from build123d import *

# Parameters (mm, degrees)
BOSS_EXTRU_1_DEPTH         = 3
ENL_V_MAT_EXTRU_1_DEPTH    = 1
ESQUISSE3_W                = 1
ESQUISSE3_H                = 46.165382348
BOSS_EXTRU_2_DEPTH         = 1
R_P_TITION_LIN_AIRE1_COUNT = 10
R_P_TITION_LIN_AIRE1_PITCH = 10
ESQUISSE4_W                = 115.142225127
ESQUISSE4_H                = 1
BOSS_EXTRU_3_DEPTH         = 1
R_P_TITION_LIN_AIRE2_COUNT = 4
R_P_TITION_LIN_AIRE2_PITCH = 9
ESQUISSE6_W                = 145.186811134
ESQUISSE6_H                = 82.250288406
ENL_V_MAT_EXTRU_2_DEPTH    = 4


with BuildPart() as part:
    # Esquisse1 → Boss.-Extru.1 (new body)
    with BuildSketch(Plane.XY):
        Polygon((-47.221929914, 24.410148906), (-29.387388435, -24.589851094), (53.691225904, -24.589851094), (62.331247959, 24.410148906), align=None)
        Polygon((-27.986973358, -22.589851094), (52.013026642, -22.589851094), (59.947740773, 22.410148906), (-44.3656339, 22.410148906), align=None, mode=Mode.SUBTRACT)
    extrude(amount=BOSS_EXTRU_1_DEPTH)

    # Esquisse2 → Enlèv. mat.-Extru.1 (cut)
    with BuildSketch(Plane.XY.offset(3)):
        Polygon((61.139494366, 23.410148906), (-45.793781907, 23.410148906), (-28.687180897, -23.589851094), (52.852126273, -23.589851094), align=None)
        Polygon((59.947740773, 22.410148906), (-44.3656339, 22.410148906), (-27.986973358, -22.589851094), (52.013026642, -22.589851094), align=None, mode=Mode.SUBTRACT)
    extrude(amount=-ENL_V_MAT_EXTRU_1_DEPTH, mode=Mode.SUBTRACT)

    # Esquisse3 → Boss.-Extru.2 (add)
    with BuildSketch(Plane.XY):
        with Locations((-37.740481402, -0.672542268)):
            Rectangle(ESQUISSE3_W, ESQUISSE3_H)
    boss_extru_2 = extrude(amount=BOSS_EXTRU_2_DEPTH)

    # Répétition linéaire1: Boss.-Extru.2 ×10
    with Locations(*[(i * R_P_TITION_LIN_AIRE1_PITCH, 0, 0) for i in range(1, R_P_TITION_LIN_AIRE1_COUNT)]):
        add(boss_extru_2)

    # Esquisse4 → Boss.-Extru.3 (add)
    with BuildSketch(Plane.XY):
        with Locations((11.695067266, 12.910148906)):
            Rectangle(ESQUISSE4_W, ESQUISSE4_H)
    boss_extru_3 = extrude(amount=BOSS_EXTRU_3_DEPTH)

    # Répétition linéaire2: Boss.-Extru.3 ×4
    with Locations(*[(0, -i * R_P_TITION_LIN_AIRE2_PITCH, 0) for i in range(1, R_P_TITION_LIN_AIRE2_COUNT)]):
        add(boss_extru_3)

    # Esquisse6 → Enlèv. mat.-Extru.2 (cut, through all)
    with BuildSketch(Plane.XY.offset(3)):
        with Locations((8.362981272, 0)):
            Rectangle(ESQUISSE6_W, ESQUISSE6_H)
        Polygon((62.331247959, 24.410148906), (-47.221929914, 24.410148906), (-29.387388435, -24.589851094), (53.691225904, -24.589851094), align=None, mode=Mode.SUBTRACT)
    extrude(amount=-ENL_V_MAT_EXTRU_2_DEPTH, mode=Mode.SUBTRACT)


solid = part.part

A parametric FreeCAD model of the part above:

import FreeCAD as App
import Part
import Sketcher
Q = App.Units.Quantity

doc = App.newDocument("Part")
body = doc.addObject("PartDesign::Body", "Body")

sketch1 = doc.addObject("Sketcher::SketchObject", "Sketch")
body.addObject(sketch1)
sketch1.AttachmentSupport = (doc.XY_Plane, [""])
sketch1.MapMode = "FlatFace"
sketch1.addGeometry([
    Part.LineSegment(App.Vector(-47, 24, 0), App.Vector(-29, -25, 0)),
    Part.LineSegment(App.Vector(-29, -25, 0), App.Vector(54, -25, 0)),
    Part.LineSegment(App.Vector(54, -25, 0), App.Vector(62, 24, 0)),
    Part.LineSegment(App.Vector(62, 24, 0), App.Vector(-47, 24, 0)),
    Part.LineSegment(App.Vector(52, -23, 0), App.Vector(-28, -23, 0)),
    Part.LineSegment(App.Vector(-28, -23, 0), App.Vector(-44, 22, 0)),
    Part.LineSegment(App.Vector(-44, 22, 0), App.Vector(60, 22, 0)),
    Part.LineSegment(App.Vector(60, 22, 0), App.Vector(52, -23, 0)),
], False)
sketch1.addConstraint([
    Sketcher.Constraint("Coincident", 0, 2, 1, 1),
    Sketcher.Constraint("Coincident", 1, 2, 2, 1),
    Sketcher.Constraint("Coincident", 2, 2, 3, 1),
    Sketcher.Constraint("Coincident", 3, 2, 0, 1),
    Sketcher.Constraint("Coincident", 4, 2, 5, 1),
    Sketcher.Constraint("Coincident", 5, 2, 6, 1),
    Sketcher.Constraint("Coincident", 6, 2, 7, 1),
    Sketcher.Constraint("Coincident", 7, 2, 4, 1),
    Sketcher.Constraint("Horizontal", 1),
    Sketcher.Constraint("Horizontal", 3),
    Sketcher.Constraint("Horizontal", 4),
    Sketcher.Constraint("Horizontal", 6),
    Sketcher.Constraint("Parallel", 0, 5),
    Sketcher.Constraint("Parallel", 2, 7),
    Sketcher.Constraint("DistanceX", 4, 2, 4, 1, 80.0),
    Sketcher.Constraint("Angle", 0, Q("-70 deg")),
    Sketcher.Constraint("Angle", 2, Q("80 deg")),
    Sketcher.Constraint("DistanceY", 1, 2, 2, 2, 49.0),
    Sketcher.Constraint("DistanceY", 0, 2, 4, 2, 2.0),
    Sketcher.Constraint("DistanceY", 5, 2, 3, 2, 2.0),
    Sketcher.Constraint("DistanceX", 4, 2, 1, 2, 81.678199),
    Sketcher.Constraint("DistanceX", 1, 1, 1, 2, 83.078614),
    Sketcher.Constraint("DistanceX", 0, 2, -1, 1, 29.387388),
    Sketcher.Constraint("DistanceY", 0, 2, -1, 1, 24.589851),
])
pad1 = doc.addObject("PartDesign::Pad", "Pad")
body.addObject(pad1)
pad1.Profile = sketch1
pad1.Length = 3

sketch2 = doc.addObject("Sketcher::SketchObject", "Sketch001")
body.addObject(sketch2)
sketch2.AttachmentSupport = (doc.XY_Plane, [""])
sketch2.MapMode = "FlatFace"
sketch2.AttachmentOffset = App.Placement(App.Vector(0, 0, 3), App.Rotation())
sketch2.addGeometry([
    Part.LineSegment(App.Vector(61, 23, 0), App.Vector(-46, 23, 0)),
    Part.LineSegment(App.Vector(-46, 23, 0), App.Vector(-29, -24, 0)),
    Part.LineSegment(App.Vector(-29, -24, 0), App.Vector(53, -24, 0)),
    Part.LineSegment(App.Vector(53, -24, 0), App.Vector(61, 23, 0)),
    Part.LineSegment(App.Vector(-44, 22, 0), App.Vector(60, 22, 0)),
    Part.LineSegment(App.Vector(60, 22, 0), App.Vector(52, -23, 0)),
    Part.LineSegment(App.Vector(52, -23, 0), App.Vector(-28, -23, 0)),
    Part.LineSegment(App.Vector(-28, -23, 0), App.Vector(-44, 22, 0)),
], False)
sketch2.addConstraint([
    Sketcher.Constraint("Coincident", 0, 2, 1, 1),
    Sketcher.Constraint("Coincident", 1, 2, 2, 1),
    Sketcher.Constraint("Coincident", 2, 2, 3, 1),
    Sketcher.Constraint("Coincident", 3, 2, 0, 1),
    Sketcher.Constraint("Coincident", 4, 2, 5, 1),
    Sketcher.Constraint("Coincident", 5, 2, 6, 1),
    Sketcher.Constraint("Coincident", 6, 2, 7, 1),
    Sketcher.Constraint("Coincident", 7, 2, 4, 1),
    Sketcher.Constraint("Horizontal", 0),
    Sketcher.Constraint("Horizontal", 2),
    Sketcher.Constraint("Horizontal", 4),
    Sketcher.Constraint("Horizontal", 6),
    Sketcher.Constraint("Parallel", 3, 5),
    Sketcher.Constraint("Parallel", 1, 7),
    Sketcher.Constraint("DistanceX", 6, 2, 6, 1, 80.0),
    Sketcher.Constraint("Angle", 1, Q("-70 deg")),
    Sketcher.Constraint("Angle", 3, Q("80 deg")),
    Sketcher.Constraint("DistanceY", 1, 2, 0, 2, 47.0),
    Sketcher.Constraint("DistanceY", 4, 2, 3, 2, 1.0),
    Sketcher.Constraint("DistanceY", 2, 2, 5, 2, 1.0),
    Sketcher.Constraint("DistanceX", 5, 2, 2, 2, 0.8391),
    Sketcher.Constraint("DistanceX", 0, 2, 0, 1, 106.933276),
    Sketcher.Constraint("DistanceX", 0, 2, -1, 1, 45.793782),
    Sketcher.Constraint("DistanceY", -1, 1, 0, 2, 23.410149),
])
pocket1 = doc.addObject("PartDesign::Pocket", "Pocket")
body.addObject(pocket1)
pocket1.Profile = sketch2
pocket1.Length = 1

sketch3 = doc.addObject("Sketcher::SketchObject", "Sketch002")
body.addObject(sketch3)
sketch3.AttachmentSupport = (doc.XY_Plane, [""])
sketch3.MapMode = "FlatFace"
sketch3.addGeometry([
    Part.LineSegment(App.Vector(-38.2, 22.4, 0), App.Vector(-38.2, -23.8, 0)),
    Part.LineSegment(App.Vector(-38.2, -23.8, 0), App.Vector(-37.2, -23.8, 0)),
    Part.LineSegment(App.Vector(-37.2, -23.8, 0), App.Vector(-37.2, 22.4, 0)),
    Part.LineSegment(App.Vector(-37.2, 22.4, 0), App.Vector(-38.2, 22.4, 0)),
], False)
sketch3.addConstraint([
    Sketcher.Constraint("Coincident", 0, 2, 1, 1),
    Sketcher.Constraint("Coincident", 1, 2, 2, 1),
    Sketcher.Constraint("Coincident", 2, 2, 3, 1),
    Sketcher.Constraint("Coincident", 3, 2, 0, 1),
    Sketcher.Constraint("Vertical", 0),
    Sketcher.Constraint("Horizontal", 1),
    Sketcher.Constraint("Vertical", 2),
    Sketcher.Constraint("Horizontal", 3),
    Sketcher.Constraint("DistanceX", 1, 1, 1, 2, 1.0),
    Sketcher.Constraint("DistanceY", 0, 2, 0, 1, 46.165382),
    Sketcher.Constraint("DistanceX", 0, 2, -1, 1, 38.240481),
    Sketcher.Constraint("DistanceY", -1, 1, 2, 2, 22.410149),
])
pad2 = doc.addObject("PartDesign::Pad", "Pad001")
body.addObject(pad2)
pad2.Profile = sketch3
pad2.Length = 1
doc.recompute()

linearpattern = doc.addObject("PartDesign::LinearPattern", "LinearPattern")
body.addObject(linearpattern)
linearpattern.Originals = [pad2]
linearpattern.Direction = (doc.X_Axis, [""])
linearpattern.Mode = "offset"
linearpattern.Offset = 10
linearpattern.Occurrences = 10
body.Tip = linearpattern

sketch4 = doc.addObject("Sketcher::SketchObject", "Sketch003")
body.addObject(sketch4)
sketch4.AttachmentSupport = (doc.XY_Plane, [""])
sketch4.MapMode = "FlatFace"
sketch4.addGeometry([
    Part.LineSegment(App.Vector(-45.9, 13.4, 0), App.Vector(-45.9, 12.4, 0)),
    Part.LineSegment(App.Vector(-45.9, 12.4, 0), App.Vector(69.3, 12.4, 0)),
    Part.LineSegment(App.Vector(69.3, 12.4, 0), App.Vector(69.3, 13.4, 0)),
    Part.LineSegment(App.Vector(69.3, 13.4, 0), App.Vector(-45.9, 13.4, 0)),
], False)
sketch4.addConstraint([
    Sketcher.Constraint("Coincident", 0, 2, 1, 1),
    Sketcher.Constraint("Coincident", 1, 2, 2, 1),
    Sketcher.Constraint("Coincident", 2, 2, 3, 1),
    Sketcher.Constraint("Coincident", 3, 2, 0, 1),
    Sketcher.Constraint("Vertical", 0),
    Sketcher.Constraint("Horizontal", 1),
    Sketcher.Constraint("Vertical", 2),
    Sketcher.Constraint("Horizontal", 3),
    Sketcher.Constraint("DistanceY", 0, 2, 0, 1, 1.0),
    Sketcher.Constraint("DistanceX", 1, 1, 1, 2, 115.142225),
    Sketcher.Constraint("DistanceY", -1, 1, 0, 2, 12.410149),
    Sketcher.Constraint("DistanceX", -1, 1, 1, 2, 69.26618),
])
pad3 = doc.addObject("PartDesign::Pad", "Pad002")
body.addObject(pad3)
pad3.Profile = sketch4
pad3.Length = 1
doc.recompute()

linearpattern2 = doc.addObject("PartDesign::LinearPattern", "LinearPattern001")
body.addObject(linearpattern2)
linearpattern2.Originals = [pad3]
linearpattern2.Direction = (doc.Y_Axis, [""])
linearpattern2.Mode = "offset"
linearpattern2.Offset = 9
linearpattern2.Occurrences = 4
linearpattern2.Reversed = True
body.Tip = linearpattern2

sketch5 = doc.addObject("Sketcher::SketchObject", "Sketch004")
body.addObject(sketch5)
sketch5.AttachmentSupport = (doc.XY_Plane, [""])
sketch5.MapMode = "FlatFace"
sketch5.AttachmentOffset = App.Placement(App.Vector(0, 0, 3), App.Rotation())
sketch5.addGeometry([
    Part.LineSegment(App.Vector(-64, 41, 0), App.Vector(-64, -41, 0)),
    Part.LineSegment(App.Vector(-64, -41, 0), App.Vector(81, -41, 0)),
    Part.LineSegment(App.Vector(81, -41, 0), App.Vector(81, 41, 0)),
    Part.LineSegment(App.Vector(81, 41, 0), App.Vector(-64, 41, 0)),
    Part.LineSegment(App.Vector(-47, 24, 0), App.Vector(62, 24, 0)),
    Part.LineSegment(App.Vector(62, 24, 0), App.Vector(54, -25, 0)),
    Part.LineSegment(App.Vector(54, -25, 0), App.Vector(-29, -25, 0)),
    Part.LineSegment(App.Vector(-29, -25, 0), App.Vector(-47, 24, 0)),
], False)
sketch5.addConstraint([
    Sketcher.Constraint("Coincident", 0, 2, 1, 1),
    Sketcher.Constraint("Coincident", 1, 2, 2, 1),
    Sketcher.Constraint("Coincident", 2, 2, 3, 1),
    Sketcher.Constraint("Coincident", 3, 2, 0, 1),
    Sketcher.Constraint("Coincident", 4, 2, 5, 1),
    Sketcher.Constraint("Coincident", 5, 2, 6, 1),
    Sketcher.Constraint("Coincident", 6, 2, 7, 1),
    Sketcher.Constraint("Coincident", 7, 2, 4, 1),
    Sketcher.Constraint("Vertical", 0),
    Sketcher.Constraint("Horizontal", 1),
    Sketcher.Constraint("Vertical", 2),
    Sketcher.Constraint("Horizontal", 3),
    Sketcher.Constraint("Horizontal", 4),
    Sketcher.Constraint("Horizontal", 6),
    Sketcher.Constraint("Angle", 5, Q("-100 deg")),
    Sketcher.Constraint("Angle", 7, Q("110 deg")),
    Sketcher.Constraint("DistanceY", 5, 2, 4, 2, 49.0),
    Sketcher.Constraint("DistanceX", 1, 1, 1, 2, 145.186811),
    Sketcher.Constraint("DistanceY", 0, 2, 0, 1, 82.250288),
    Sketcher.Constraint("DistanceX", 4, 1, 4, 2, 109.553178),
    Sketcher.Constraint("DistanceY", -1, 1, 4, 2, 24.410149),
    Sketcher.Constraint("DistanceX", 6, 2, -1, 1, 29.387388),
    Sketcher.Constraint("DistanceX", 4, 2, 2, 2, 18.625139),
    Sketcher.Constraint("DistanceY", 0, 2, -1, 1, 41.125144),
])
pocket2 = doc.addObject("PartDesign::Pocket", "Pocket001")
body.addObject(pocket2)
pocket2.Profile = sketch5
pocket2.Type = "ThroughAll"

doc.recompute()
